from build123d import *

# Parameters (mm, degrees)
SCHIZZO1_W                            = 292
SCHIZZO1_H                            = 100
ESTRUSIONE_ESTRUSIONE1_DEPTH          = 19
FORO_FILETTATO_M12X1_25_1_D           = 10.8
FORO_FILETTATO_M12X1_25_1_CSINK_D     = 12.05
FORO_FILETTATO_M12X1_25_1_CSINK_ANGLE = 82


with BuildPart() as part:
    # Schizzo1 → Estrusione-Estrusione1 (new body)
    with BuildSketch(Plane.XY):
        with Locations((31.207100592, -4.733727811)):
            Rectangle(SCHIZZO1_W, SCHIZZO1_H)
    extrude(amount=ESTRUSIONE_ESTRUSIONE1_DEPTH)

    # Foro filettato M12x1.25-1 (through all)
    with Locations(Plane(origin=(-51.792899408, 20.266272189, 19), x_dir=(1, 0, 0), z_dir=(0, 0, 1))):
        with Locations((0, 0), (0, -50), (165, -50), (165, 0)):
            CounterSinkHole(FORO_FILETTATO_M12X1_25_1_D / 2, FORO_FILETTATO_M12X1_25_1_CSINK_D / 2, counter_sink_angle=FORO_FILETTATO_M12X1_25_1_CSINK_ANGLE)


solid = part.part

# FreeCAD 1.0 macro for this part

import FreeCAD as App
import Part
import Sketcher
Q = App.Units.Quantity

doc = App.newDocument("Part")
body = doc.addObject("PartDesign::Body", "Body")

sketch1 = body.newObject("Sketcher::SketchObject", "Sketch")
sketch1.AttachmentSupport = (doc.getObject("XY_Plane"), [""])
sketch1.MapMode = "FlatFace"
sketch1.addGeometry([
    Part.LineSegment(App.Vector(-115, 45, 0), App.Vector(-115, -55, 0)),
    Part.LineSegment(App.Vector(-115, -55, 0), App.Vector(177, -55, 0)),
    Part.LineSegment(App.Vector(177, -55, 0), App.Vector(177, 45, 0)),
    Part.LineSegment(App.Vector(177, 45, 0), App.Vector(-115, 45, 0)),
], False)
sketch1.addConstraint([
    Sketcher.Constraint("Coincident", 0, 2, 1, 1),
    Sketcher.Constraint("Coincident", 1, 2, 2, 1),
    Sketcher.Constraint("Coincident", 2, 2, 3, 1),
    Sketcher.Constraint("Coincident", 3, 2, 0, 1),
    Sketcher.Constraint("Vertical", 0),
    Sketcher.Constraint("Horizontal", 1),
    Sketcher.Constraint("Vertical", 2),
    Sketcher.Constraint("Horizontal", 3),
    Sketcher.Constraint("DistanceX", 1, 1, 1, 2, Q("292 mm")),
    Sketcher.Constraint("DistanceY", 0, 2, 0, 1, Q("100 mm")),
    Sketcher.Constraint("DistanceX", 0, 2, -1, 1, Q("114.792899 mm")),
    Sketcher.Constraint("DistanceY", 0, 2, -1, 1, Q("54.733728 mm")),
])
pad1 = body.newObject("PartDesign::Pad", "Pad")
pad1.Profile = sketch1
pad1.Length = 19

sketch2 = body.newObject("Sketcher::SketchObject", "Sketch001")
sketch2.AttachmentSupport = (doc.getObject("XY_Plane"), [""])
sketch2.MapMode = "FlatFace"
sketch2.AttachmentOffset = App.Placement(App.Vector(0, 0, 19), App.Rotation())
sketch2.addGeometry([
    Part.Circle(App.Vector(-52, 20, 0), App.Vector(0, 0, 1), 5),
    Part.Circle(App.Vector(-52, -30, 0), App.Vector(0, 0, 1), 5),
    Part.Circle(App.Vector(113, -30, 0), App.Vector(0, 0, 1), 5),
    Part.Circle(App.Vector(113, 20, 0), App.Vector(0, 0, 1), 5),
], False)
sketch2.addConstraint([
    Sketcher.Constraint("Equal", 0, 1),
    Sketcher.Constraint("Equal", 1, 2),
    Sketcher.Constraint("Equal", 2, 3),
    Sketcher.Constraint("Horizontal", 1, 3, 2, 3),
    Sketcher.Constraint("Horizontal", 0, 3, 3, 3),
    Sketcher.Constraint("Vertical", 0, 3, 1, 3),
    Sketcher.Constraint("Vertical", 2, 3, 3, 3),
    Sketcher.Constraint("Diameter", 0, Q("10.8 mm")),
    Sketcher.Constraint("DistanceY", 1, 3, 0, 3, Q("50 mm")),
    Sketcher.Constraint("DistanceX", 1, 3, 2, 3, Q("165 mm")),
    Sketcher.Constraint("DistanceX", 0, 3, -1, 1, Q("51.792899 mm")),
    Sketcher.Constraint("DistanceY", -1, 1, 0, 3, Q("20.266272 mm")),
])
doc.recompute()
hole = body.newObject("PartDesign::Hole", "Hole")
hole.Profile = sketch2
hole.ThreadType = "None"
hole.Diameter = 10.8
hole.DepthType = "ThroughAll"
hole.HoleCutType = "Countersink"
hole.HoleCutDiameter = 12.05
hole.HoleCutCountersinkAngle = 82

doc.recompute()
